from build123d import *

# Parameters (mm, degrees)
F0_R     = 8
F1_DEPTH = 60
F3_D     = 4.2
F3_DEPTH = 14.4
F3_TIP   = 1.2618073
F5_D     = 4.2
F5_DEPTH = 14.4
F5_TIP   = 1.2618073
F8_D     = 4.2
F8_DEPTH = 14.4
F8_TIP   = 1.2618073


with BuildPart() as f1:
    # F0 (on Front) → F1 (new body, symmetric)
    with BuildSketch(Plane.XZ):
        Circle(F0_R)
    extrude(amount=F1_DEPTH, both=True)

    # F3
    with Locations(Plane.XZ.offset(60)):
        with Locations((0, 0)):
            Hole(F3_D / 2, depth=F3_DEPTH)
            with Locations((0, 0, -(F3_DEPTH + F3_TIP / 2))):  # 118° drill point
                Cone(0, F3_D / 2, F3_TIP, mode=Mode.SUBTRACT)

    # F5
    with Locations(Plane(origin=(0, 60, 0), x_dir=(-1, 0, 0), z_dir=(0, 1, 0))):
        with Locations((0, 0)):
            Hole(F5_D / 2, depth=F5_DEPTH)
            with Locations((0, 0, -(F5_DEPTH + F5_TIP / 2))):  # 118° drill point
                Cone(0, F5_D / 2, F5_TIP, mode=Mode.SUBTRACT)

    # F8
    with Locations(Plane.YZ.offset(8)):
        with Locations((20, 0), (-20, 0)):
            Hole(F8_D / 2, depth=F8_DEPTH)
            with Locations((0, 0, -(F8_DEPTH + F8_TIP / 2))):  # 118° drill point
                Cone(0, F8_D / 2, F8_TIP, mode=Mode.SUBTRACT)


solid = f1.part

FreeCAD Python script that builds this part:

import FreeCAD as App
import Part
import Sketcher

doc = App.newDocument("Part")
body = doc.addObject("PartDesign::Body", "Body")

# Sketch on XZ plane
sketch1 = body.newObject("Sketcher::SketchObject", "Sketch")
sketch1.AttachmentSupport = (doc.getObject("XZ_Plane"), [""])
sketch1.MapMode = "FlatFace"
sketch1.addGeometry(Part.Circle(App.Vector(0, 0, 0), App.Vector(0, 0, 1), 8), False)
sketch1.addConstraint([
    Sketcher.Constraint("Coincident", 0, 3, -1, 1),
    Sketcher.Constraint("Diameter", 0, 16.0),
])
pad1 = body.newObject("PartDesign::Pad", "Pad")
pad1.Profile = sketch1
pad1.Length = 120
pad1.Midplane = True

# Sketch on XZ plane
sketch2 = body.newObject("Sketcher::SketchObject", "Sketch001")
sketch2.AttachmentSupport = (doc.getObject("XZ_Plane"), [""])
sketch2.MapMode = "FlatFace"
sketch2.AttachmentOffset = App.Placement(App.Vector(0, 0, 60), App.Rotation())
sketch2.addGeometry(Part.Circle(App.Vector(0, 0, 0), App.Vector(0, 0, 1), 2.1), False)
sketch2.addConstraint([
    Sketcher.Constraint("Coincident", 0, 3, -1, 1),
    Sketcher.Constraint("Diameter", 0, 4.2),
])
doc.recompute()
hole = body.newObject("PartDesign::Hole", "Hole")
hole.Profile = sketch2
hole.ThreadType = "None"
hole.Diameter = 4.2
hole.DepthType = "Dimension"
hole.Depth = 14.4
hole.DrillPoint = "Angled"
hole.DrillPointAngle = 118

# Sketch on XZ plane
sketch3 = body.newObject("Sketcher::SketchObject", "Sketch002")
sketch3.AttachmentSupport = (doc.getObject("XZ_Plane"), [""])
sketch3.MapMode = "FlatFace"
sketch3.AttachmentOffset = App.Placement(App.Vector(0, 0, -60), App.Rotation())
sketch3.addGeometry(Part.Circle(App.Vector(0, 0, 0), App.Vector(0, 0, 1), 2.1), False)
sketch3.addConstraint([
    Sketcher.Constraint("Coincident", 0, 3, -1, 1),
    Sketcher.Constraint("Diameter", 0, 4.2),
])
doc.recompute()
hole2 = body.newObject("PartDesign::Hole", "Hole001")
hole2.Profile = sketch3
hole2.ThreadType = "None"
hole2.Diameter = 4.2
hole2.DepthType = "Dimension"
hole2.Depth = 14.4
hole2.DrillPoint = "Angled"
hole2.DrillPointAngle = 118
hole2.Reversed = True

# Sketch on YZ plane
sketch4 = body.newObject("Sketcher::SketchObject", "Sketch003")
sketch4.AttachmentSupport = (doc.getObject("YZ_Plane"), [""])
sketch4.MapMode = "FlatFace"
sketch4.AttachmentOffset = App.Placement(App.Vector(0, 0, 8), App.Rotation())
sketch4.addGeometry([
    Part.Circle(App.Vector(20, 0, 0), App.Vector(0, 0, 1), 2.1),
    Part.Circle(App.Vector(-20, 0, 0), App.Vector(0, 0, 1), 2.1),
], False)
sketch4.addConstraint([
    Sketcher.Constraint("Equal", 0, 1),
    Sketcher.Constraint("Symmetric", 0, 3, 1, 3, -1, 1),
    Sketcher.Constraint("PointOnObject", 0, 3, -1),
    Sketcher.Constraint("Diameter", 0, 4.2),
    Sketcher.Constraint("DistanceX", -1, 1, 0, 3, 20.0),
])
doc.recompute()
hole3 = body.newObject("PartDesign::Hole", "Hole002")
hole3.Profile = sketch4
hole3.ThreadType = "None"
hole3.Diameter = 4.2
hole3.DepthType = "Dimension"
hole3.Depth = 14.4
hole3.DrillPoint = "Angled"
hole3.DrillPointAngle = 118

doc.recompute()
